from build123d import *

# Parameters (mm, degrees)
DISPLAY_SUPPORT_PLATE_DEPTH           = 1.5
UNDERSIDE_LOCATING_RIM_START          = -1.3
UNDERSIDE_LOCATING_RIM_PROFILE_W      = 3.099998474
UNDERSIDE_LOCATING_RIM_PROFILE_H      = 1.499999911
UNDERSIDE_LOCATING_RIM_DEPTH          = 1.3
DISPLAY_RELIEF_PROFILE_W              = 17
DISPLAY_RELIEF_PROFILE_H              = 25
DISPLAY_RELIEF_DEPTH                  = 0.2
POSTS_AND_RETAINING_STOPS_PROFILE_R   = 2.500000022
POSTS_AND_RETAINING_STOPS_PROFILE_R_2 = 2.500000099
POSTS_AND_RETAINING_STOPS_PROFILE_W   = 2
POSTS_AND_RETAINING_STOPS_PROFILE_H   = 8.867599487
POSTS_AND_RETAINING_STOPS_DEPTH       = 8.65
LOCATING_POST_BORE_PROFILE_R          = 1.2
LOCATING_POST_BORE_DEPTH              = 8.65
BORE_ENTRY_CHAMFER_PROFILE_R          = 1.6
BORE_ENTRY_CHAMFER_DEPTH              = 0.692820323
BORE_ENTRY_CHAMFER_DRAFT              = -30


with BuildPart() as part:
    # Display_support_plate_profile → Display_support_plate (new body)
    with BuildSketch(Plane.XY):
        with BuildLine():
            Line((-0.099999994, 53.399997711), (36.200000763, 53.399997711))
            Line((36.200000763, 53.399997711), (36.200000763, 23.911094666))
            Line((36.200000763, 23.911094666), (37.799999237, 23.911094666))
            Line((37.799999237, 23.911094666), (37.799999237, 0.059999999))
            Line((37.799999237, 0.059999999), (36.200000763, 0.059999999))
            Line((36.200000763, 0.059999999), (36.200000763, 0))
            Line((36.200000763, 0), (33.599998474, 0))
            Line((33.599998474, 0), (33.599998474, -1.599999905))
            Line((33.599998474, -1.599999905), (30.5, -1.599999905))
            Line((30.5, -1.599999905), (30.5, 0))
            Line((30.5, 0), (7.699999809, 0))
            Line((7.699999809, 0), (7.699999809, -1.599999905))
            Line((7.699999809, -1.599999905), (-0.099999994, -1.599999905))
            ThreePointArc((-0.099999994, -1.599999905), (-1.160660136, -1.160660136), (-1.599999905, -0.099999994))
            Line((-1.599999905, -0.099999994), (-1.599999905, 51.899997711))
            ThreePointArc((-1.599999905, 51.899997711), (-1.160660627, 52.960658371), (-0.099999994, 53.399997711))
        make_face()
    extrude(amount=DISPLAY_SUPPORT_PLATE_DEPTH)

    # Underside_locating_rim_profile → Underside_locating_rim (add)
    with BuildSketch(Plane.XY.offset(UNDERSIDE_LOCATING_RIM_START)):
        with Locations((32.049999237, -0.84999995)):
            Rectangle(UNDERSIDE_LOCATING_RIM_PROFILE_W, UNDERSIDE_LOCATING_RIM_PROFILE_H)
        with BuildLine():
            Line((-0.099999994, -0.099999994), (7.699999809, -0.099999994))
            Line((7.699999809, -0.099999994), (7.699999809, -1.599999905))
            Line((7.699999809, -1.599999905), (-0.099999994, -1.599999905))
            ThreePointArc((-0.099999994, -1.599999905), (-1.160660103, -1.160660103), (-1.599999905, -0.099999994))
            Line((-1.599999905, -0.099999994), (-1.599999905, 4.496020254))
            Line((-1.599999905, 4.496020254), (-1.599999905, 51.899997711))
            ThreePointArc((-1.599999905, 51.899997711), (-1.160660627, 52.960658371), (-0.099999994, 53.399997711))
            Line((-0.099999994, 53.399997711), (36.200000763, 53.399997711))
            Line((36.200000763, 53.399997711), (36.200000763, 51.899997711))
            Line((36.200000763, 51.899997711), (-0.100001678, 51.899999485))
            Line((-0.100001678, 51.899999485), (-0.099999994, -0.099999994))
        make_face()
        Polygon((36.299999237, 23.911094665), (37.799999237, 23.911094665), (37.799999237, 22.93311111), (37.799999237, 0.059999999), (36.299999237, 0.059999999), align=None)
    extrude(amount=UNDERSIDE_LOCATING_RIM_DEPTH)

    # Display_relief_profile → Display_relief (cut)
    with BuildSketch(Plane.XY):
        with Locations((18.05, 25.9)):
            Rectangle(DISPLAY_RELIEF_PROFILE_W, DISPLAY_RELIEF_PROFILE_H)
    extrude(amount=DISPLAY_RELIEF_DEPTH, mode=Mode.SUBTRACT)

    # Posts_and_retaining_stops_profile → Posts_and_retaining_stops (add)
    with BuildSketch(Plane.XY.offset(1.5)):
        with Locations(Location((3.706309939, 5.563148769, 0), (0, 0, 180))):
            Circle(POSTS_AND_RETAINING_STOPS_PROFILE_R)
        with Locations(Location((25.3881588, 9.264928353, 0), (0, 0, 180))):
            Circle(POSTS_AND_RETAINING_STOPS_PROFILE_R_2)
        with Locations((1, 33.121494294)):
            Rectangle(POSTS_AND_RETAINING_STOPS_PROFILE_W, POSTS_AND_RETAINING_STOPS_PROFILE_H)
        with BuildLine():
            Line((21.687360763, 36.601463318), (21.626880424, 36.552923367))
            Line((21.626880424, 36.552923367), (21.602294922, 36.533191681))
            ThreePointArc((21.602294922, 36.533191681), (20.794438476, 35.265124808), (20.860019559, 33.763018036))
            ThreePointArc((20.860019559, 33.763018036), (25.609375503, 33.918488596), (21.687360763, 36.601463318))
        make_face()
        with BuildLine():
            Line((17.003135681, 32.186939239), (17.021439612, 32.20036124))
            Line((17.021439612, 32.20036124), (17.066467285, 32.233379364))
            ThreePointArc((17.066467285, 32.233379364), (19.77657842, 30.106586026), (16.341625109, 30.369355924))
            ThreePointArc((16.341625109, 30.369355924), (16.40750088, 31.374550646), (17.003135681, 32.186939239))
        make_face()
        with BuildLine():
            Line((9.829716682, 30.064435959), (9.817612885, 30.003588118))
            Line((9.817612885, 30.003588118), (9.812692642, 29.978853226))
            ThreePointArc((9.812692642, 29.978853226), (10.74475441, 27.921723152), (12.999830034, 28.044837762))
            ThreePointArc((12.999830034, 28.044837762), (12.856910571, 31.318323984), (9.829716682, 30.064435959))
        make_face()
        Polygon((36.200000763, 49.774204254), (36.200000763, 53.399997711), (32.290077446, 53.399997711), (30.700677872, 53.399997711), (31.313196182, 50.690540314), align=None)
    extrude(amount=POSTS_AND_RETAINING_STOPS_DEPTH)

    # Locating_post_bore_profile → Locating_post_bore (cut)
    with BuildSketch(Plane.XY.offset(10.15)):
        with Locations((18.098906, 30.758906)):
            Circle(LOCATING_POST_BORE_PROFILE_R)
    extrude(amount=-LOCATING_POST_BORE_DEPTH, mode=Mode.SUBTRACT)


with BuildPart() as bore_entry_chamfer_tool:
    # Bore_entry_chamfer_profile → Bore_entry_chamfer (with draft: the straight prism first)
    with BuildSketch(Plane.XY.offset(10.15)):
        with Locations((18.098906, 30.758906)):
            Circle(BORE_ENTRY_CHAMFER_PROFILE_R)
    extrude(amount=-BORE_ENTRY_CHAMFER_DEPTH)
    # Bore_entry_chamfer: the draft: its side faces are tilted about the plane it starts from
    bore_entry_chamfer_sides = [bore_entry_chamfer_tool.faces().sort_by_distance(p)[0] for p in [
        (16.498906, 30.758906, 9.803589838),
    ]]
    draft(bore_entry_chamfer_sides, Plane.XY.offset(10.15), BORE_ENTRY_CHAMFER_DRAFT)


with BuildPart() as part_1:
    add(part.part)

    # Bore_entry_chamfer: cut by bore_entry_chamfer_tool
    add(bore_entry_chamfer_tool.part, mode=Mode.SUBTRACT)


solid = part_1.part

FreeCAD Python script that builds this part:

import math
import FreeCAD as App
import Part
import Sketcher

V = App.Vector


def faces_at(feature, points):
    """Names of the faces that lie closest to the given points."""
    faces = feature.Shape.Faces
    near = lambda p: min(range(len(faces)), key=lambda i: faces[i].distToShape(Part.Vertex(*p))[0])
    return sorted({f"Face{near(p) + 1}" for p in points})


def add_polygon(sketch, points):
    """Adds a closed chain of lines whose ends are joined by coincident constraints."""
    first, n = sketch.GeometryCount, len(points)
    for a, b in zip(points, points[1:] + points[:1]):
        sketch.addGeometry(Part.LineSegment(App.Vector(*a, 0), App.Vector(*b, 0)), False)
    for i in range(n):
        sketch.addConstraint(Sketcher.Constraint("Coincident", first + i, 2, first + (i + 1) % n, 1))

doc = App.newDocument("Part")
body = doc.addObject("PartDesign::Body", "Body")

sketch1 = body.newObject("Sketcher::SketchObject", "Sketch")
sketch1.AttachmentSupport = (doc.getObject("XY_Plane"), [""])
sketch1.MapMode = "FlatFace"
sketch1.addGeometry([
    Part.LineSegment(V(36.2, 53.4, 0), V(-0.1, 53.4, 0)),
    Part.ArcOfCircle(Part.Circle(V(-0.1, 51.9, 0), V(0, 0, 1), 1.5), math.radians(90), math.radians(180)),
    Part.LineSegment(V(-1.6, 51.9, 0), V(-1.6, -0.1, 0)),
    Part.ArcOfCircle(Part.Circle(V(-0.1, -0.1, 0), V(0, 0, 1), 1.5), math.radians(180), math.radians(270)),
    Part.LineSegment(V(-0.1, -1.6, 0), V(7.7, -1.6, 0)),
    Part.LineSegment(V(7.7, -1.6, 0), V(7.7, 0, 0)),
    Part.LineSegment(V(7.7, 0, 0), V(30.5, 0, 0)),
    Part.LineSegment(V(30.5, 0, 0), V(30.5, -1.6, 0)),
    Part.LineSegment(V(30.5, -1.6, 0), V(33.6, -1.6, 0)),
    Part.LineSegment(V(33.6, -1.6, 0), V(33.6, 0, 0)),
    Part.LineSegment(V(33.6, 0, 0), V(36.2, 0, 0)),
    Part.LineSegment(V(36.2, 0, 0), V(36.2, 0.06, 0)),
    Part.LineSegment(V(36.2, 0.06, 0), V(37.8, 0.06, 0)),
    Part.LineSegment(V(37.8, 0.06, 0), V(37.8, 23.91, 0)),
    Part.LineSegment(V(37.8, 23.91, 0), V(36.2, 23.91, 0)),
    Part.LineSegment(V(36.2, 23.91, 0), V(36.2, 53.4, 0)),
], False)
sketch1.addConstraint([
    Sketcher.Constraint("Tangent", 0, 2, 1, 1),
    Sketcher.Constraint("Tangent", 1, 2, 2, 1),
    Sketcher.Constraint("Tangent", 2, 2, 3, 1),
    Sketcher.Constraint("Tangent", 3, 2, 4, 1),
    Sketcher.Constraint("Coincident", 4, 2, 5, 1),
    Sketcher.Constraint("Coincident", 5, 2, 6, 1),
    Sketcher.Constraint("Coincident", 6, 2, 7, 1),
    Sketcher.Constraint("Coincident", 7, 2, 8, 1),
    Sketcher.Constraint("Coincident", 8, 2, 9, 1),
    Sketcher.Constraint("Coincident", 9, 2, 10, 1),
    Sketcher.Constraint("Coincident", 10, 2, 11, 1),
    Sketcher.Constraint("Coincident", 11, 2, 12, 1),
    Sketcher.Constraint("Coincident", 12, 2, 13, 1),
    Sketcher.Constraint("Coincident", 13, 2, 14, 1),
    Sketcher.Constraint("Coincident", 14, 2, 15, 1),
    Sketcher.Constraint("Coincident", 15, 2, 0, 1),
    Sketcher.Constraint("Horizontal", 0),
    Sketcher.Constraint("Vertical", 2),
    Sketcher.Constraint("Horizontal", 4),
    Sketcher.Constraint("Vertical", 5),
    Sketcher.Constraint("Horizontal", 6),
    Sketcher.Constraint("Vertical", 7),
    Sketcher.Constraint("Horizontal", 8),
    Sketcher.Constraint("Vertical", 9),
    Sketcher.Constraint("Horizontal", 10),
    Sketcher.Constraint("Vertical", 11),
    Sketcher.Constraint("Horizontal", 12),
    Sketcher.Constraint("Vertical", 13),
    Sketcher.Constraint("Horizontal", 14),
    Sketcher.Constraint("Vertical", 15),
    Sketcher.Constraint("Equal", 1, 3),
    Sketcher.Constraint("PointOnObject", 5, 2, -1),
    Sketcher.Constraint("PointOnObject", 9, 2, -1),
    Sketcher.Constraint("Horizontal", 4, 2, 7, 2),
    Sketcher.Constraint("Vertical", 11, 2, 14, 2),
    Sketcher.Constraint("Equal", 14, 5),
    Sketcher.Constraint("Radius", 1, 1.499998),
    Sketcher.Constraint("DistanceX", 0, 2, 0, 1, 36.300001),
    Sketcher.Constraint("DistanceX", 4, 1, 4, 2, 7.8),
    Sketcher.Constraint("DistanceX", 6, 1, 6, 2, 22.8),
    Sketcher.Constraint("DistanceX", 8, 1, 8, 2, 3.099998),
    Sketcher.Constraint("DistanceX", 12, 1, 12, 2, 1.599998),
    Sketcher.Constraint("DistanceY", 3, 3, 1, 3, 52.0),
    Sketcher.Constraint("DistanceY", 11, 1, 11, 2, 0.06),
    Sketcher.Constraint("DistanceX", 1, 3, -1, 1, 0.100002),
    Sketcher.Constraint("DistanceY", 13, 1, 13, 2, 23.851095),
])
pad1 = body.newObject("PartDesign::Pad", "Pad")
pad1.Profile = sketch1
pad1.Length = 1.5

sketch2 = body.newObject("Sketcher::SketchObject", "Sketch001")
sketch2.AttachmentSupport = (doc.getObject("XY_Plane"), [""])
sketch2.MapMode = "FlatFace"
sketch2.AttachmentOffset = App.Placement(V(0, 0, -1.3), App.Rotation())
add_polygon(sketch2, [(30.5, -0.1), (30.5, -1.6), (33.6, -1.6), (33.6, -0.1)])
sketch2.addGeometry(Part.LineSegment(V(7.7, -0.1, 0), V(-0.1, -0.1, 0)), False)
sketch2.addGeometry(Part.LineSegment(V(-0.1, -0.1, 0), V(-0.1, 51.9, 0)), False)
sketch2.addGeometry(Part.LineSegment(V(-0.1, 51.9, 0), V(36.2, 51.9, 0)), False)
sketch2.addGeometry(Part.LineSegment(V(36.2, 51.9, 0), V(36.2, 53.4, 0)), False)
sketch2.addGeometry(Part.LineSegment(V(36.2, 53.4, 0), V(-0.1, 53.4, 0)), False)
sketch2.addGeometry(Part.ArcOfCircle(Part.Circle(V(-0.1, 51.9, 0), V(0, 0, 1), 1.5), math.radians(90), math.radians(180)), False)
sketch2.addGeometry(Part.LineSegment(V(-1.6, 51.9, 0), V(-1.6, -0.1, 0)), False)
sketch2.addGeometry(Part.ArcOfCircle(Part.Circle(V(-0.1, -0.1, 0), V(0, 0, 1), 1.5), math.radians(180), math.radians(270)), False)
sketch2.addGeometry(Part.LineSegment(V(-0.1, -1.6, 0), V(7.7, -1.6, 0)), False)
sketch2.addGeometry(Part.LineSegment(V(7.7, -1.6, 0), V(7.7, -0.1, 0)), False)
add_polygon(sketch2, [(37.8, 23.9), (36.3, 23.9), (36.3, 0.1), (37.8, 0.1)])
sketch2.addConstraint([
    Sketcher.Constraint("Coincident", 4, 2, 5, 1),
    Sketcher.Constraint("Coincident", 5, 2, 6, 1),
    Sketcher.Constraint("Coincident", 6, 2, 7, 1),
    Sketcher.Constraint("Coincident", 7, 2, 8, 1),
    Sketcher.Constraint("Tangent", 8, 2, 9, 1),
    Sketcher.Constraint("Tangent", 9, 2, 10, 1),
    Sketcher.Constraint("Tangent", 10, 2, 11, 1),
    Sketcher.Constraint("Tangent", 11, 2, 12, 1),
    Sketcher.Constraint("Coincident", 12, 2, 13, 1),
    Sketcher.Constraint("Coincident", 13, 2, 4, 1),
    Sketcher.Constraint("Vertical", 0),
    Sketcher.Constraint("Horizontal", 1),
    Sketcher.Constraint("Vertical", 2),
    Sketcher.Constraint("Horizontal", 3),
    Sketcher.Constraint("Horizontal", 4),
    Sketcher.Constraint("Vertical", 5),
    Sketcher.Constraint("Horizontal", 6),
    Sketcher.Constraint("Vertical", 7),
    Sketcher.Constraint("Horizontal", 8),
    Sketcher.Constraint("Vertical", 10),
    Sketcher.Constraint("Horizontal", 12),
    Sketcher.Constraint("Vertical", 13),
    Sketcher.Constraint("Horizontal", 14),
    Sketcher.Constraint("Vertical", 15),
    Sketcher.Constraint("Horizontal", 16),
    Sketcher.Constraint("Vertical", 17),
    Sketcher.Constraint("Coincident", 4, 2, 11, 3),
    Sketcher.Constraint("Coincident", 5, 2, 9, 3),
    Sketcher.Constraint("Horizontal", 11, 3, 2, 2),
    Sketcher.Constraint("Horizontal", 1, 2, 11, 2),
    Sketcher.Constraint("Equal", 16, 0),
    Sketcher.Constraint("Radius", 9, 1.499998),
    Sketcher.Constraint("DistanceY", 5, 1, 5, 2, 51.999999),
    Sketcher.Constraint("DistanceX", 1, 1, 1, 2, 3.099998),
    Sketcher.Constraint("DistanceX", 4, 2, 4, 1, 7.8),
    Sketcher.Constraint("DistanceX", 8, 2, 8, 1, 36.300001),
    Sketcher.Constraint("DistanceX", 9, 3, -1, 1, 0.100002),
    Sketcher.Constraint("DistanceY", -1, 1, 9, 3, 51.899999),
    Sketcher.Constraint("DistanceX", -1, 1, 0, 2, 30.5),
    Sketcher.Constraint("DistanceX", -1, 1, 14, 2, 36.299999),
    Sketcher.Constraint("DistanceY", -1, 1, 15, 2, 0.06),
    Sketcher.Constraint("DistanceY", 15, 2, 15, 1, 23.851095),
])
pad2 = body.newObject("PartDesign::Pad", "Pad001")
pad2.Profile = sketch2
pad2.Length = 1.3

sketch3 = body.newObject("Sketcher::SketchObject", "Sketch002")
sketch3.AttachmentSupport = (doc.getObject("XY_Plane"), [""])
sketch3.MapMode = "FlatFace"
add_polygon(sketch3, [(10, 38), (10, 13), (27, 13), (27, 38)])
sketch3.addConstraint([
    Sketcher.Constraint("Vertical", 0),
    Sketcher.Constraint("Horizontal", 1),
    Sketcher.Constraint("Vertical", 2),
    Sketcher.Constraint("Horizontal", 3),
    Sketcher.Constraint("DistanceX", 1, 1, 1, 2, 17.0),
    Sketcher.Constraint("DistanceY", 0, 2, 0, 1, 25.0),
    Sketcher.Constraint("DistanceY", -1, 1, 0, 2, 13.4),
    Sketcher.Constraint("DistanceX", -1, 1, 0, 2, 9.55),
])
pocket1 = body.newObject("PartDesign::Pocket", "Pocket")
pocket1.Profile = sketch3
pocket1.Length = 0.2
pocket1.Reversed = True

sketch4 = body.newObject("Sketcher::SketchObject", "Sketch003")
sketch4.AttachmentSupport = (doc.getObject("XY_Plane"), [""])
sketch4.MapMode = "FlatFace"
sketch4.AttachmentOffset = App.Placement(V(0, 0, 1.5), App.Rotation())
sketch4.addGeometry(Part.Circle(V(3.70631, 5.563149, 0), V(0, 0, 1), 2.5), False)
sketch4.addGeometry(Part.Circle(V(25.388159, 9.264928, 0), V(0, 0, 1), 2.5), False)
add_polygon(sketch4, [(0, 37.555294), (0, 28.687695), (2, 28.687695), (2, 37.555294)])
sketch4.addGeometry(Part.LineSegment(V(21.687361, 36.601463, 0), V(21.62688, 36.552923, 0)), False)
sketch4.addGeometry(Part.LineSegment(V(21.62688, 36.552923, 0), V(21.602295, 36.533192, 0)), False)
sketch4.addGeometry(Part.ArcOfCircle(Part.Circle(V(23.209252, 34.618069, 0), V(0, 0, 1), 2.500001), math.radians(129.999622), math.radians(200.000008)), False)
sketch4.addGeometry(Part.ArcOfCircle(Part.Circle(V(23.209252, 34.618069, 0), V(0, 0, 1), 2.500001), math.radians(-159.999992), math.radians(127.499625)), False)
sketch4.addGeometry(Part.LineSegment(V(17.02144, 32.200361, 0), V(17.003136, 32.186939, 0)), False)
sketch4.addGeometry(Part.ArcOfCircle(Part.Circle(V(18.098956, 30.758945, 0), V(0, 0, 1), 1.799997), math.radians(127.50205), math.radians(192.499935)), False)
sketch4.addGeometry(Part.ArcOfCircle(Part.Circle(V(18.098956, 30.758945, 0), V(0, 0, 1), 1.799997), math.radians(-167.500065), math.radians(125.002035)), False)
sketch4.addGeometry(Part.LineSegment(V(17.066467, 32.233379, 0), V(17.02144, 32.200361, 0)), False)
sketch4.addGeometry(Part.LineSegment(V(9.829717, 30.064436, 0), V(9.817613, 30.003588, 0)), False)
sketch4.addGeometry(Part.LineSegment(V(9.817613, 30.003588, 0), V(9.812693, 29.978853, 0)), False)
sketch4.addGeometry(Part.ArcOfCircle(Part.Circle(V(11.782306, 29.631544, 0), V(0, 0, 1), 2), math.radians(169.999628), math.radians(307.50003)), False)
sketch4.addGeometry(Part.ArcOfCircle(Part.Circle(V(11.782306, 29.631544, 0), V(0, 0, 1), 2), math.radians(-52.49997), math.radians(167.49963)), False)
add_polygon(sketch4, [(36.200001, 49.774204), (36.200001, 53.399998), (30.700678, 53.399998), (31.313196, 50.69054)])
sketch4.addConstraint([
    Sketcher.Constraint("Coincident", 6, 2, 7, 1),
    Sketcher.Constraint("Coincident", 7, 2, 8, 1),
    Sketcher.Constraint("Coincident", 8, 2, 9, 1),
    Sketcher.Constraint("Coincident", 9, 2, 6, 1),
    Sketcher.Constraint("Coincident", 10, 2, 11, 1),
    Sketcher.Constraint("Coincident", 11, 2, 12, 1),
    Sketcher.Constraint("Coincident", 12, 2, 13, 1),
    Sketcher.Constraint("Coincident", 13, 2, 10, 1),
    Sketcher.Constraint("Coincident", 14, 2, 15, 1),
    Sketcher.Constraint("Coincident", 15, 2, 16, 1),
    Sketcher.Constraint("Coincident", 16, 2, 17, 1),
    Sketcher.Constraint("Coincident", 17, 2, 14, 1),
    Sketcher.Constraint("Vertical", 2),
    Sketcher.Constraint("Horizontal", 3),
    Sketcher.Constraint("Vertical", 4),
    Sketcher.Constraint("Horizontal", 5),
    Sketcher.Constraint("Vertical", 18),
    Sketcher.Constraint("Horizontal", 19),
    Sketcher.Constraint("Coincident", 9, 3, 8, 3),
    Sketcher.Constraint("Coincident", 12, 3, 11, 3),
    Sketcher.Constraint("Coincident", 17, 3, 16, 3),
    Sketcher.Constraint("PointOnObject", 2, 2, -2),
    Sketcher.Constraint("Diameter", 0, 5.0),
    Sketcher.Constraint("Diameter", 1, 5.0),
    Sketcher.Constraint("Radius", 16, 2.0),
    Sketcher.Constraint("Radius", 8, 2.500001),
    Sketcher.Constraint("DistanceX", 3, 1, 3, 2, 2.0),
    Sketcher.Constraint("DistanceX", -1, 1, 18, 2, 36.200001),
    Sketcher.Constraint("DistanceY", 2, 2, 2, 1, 8.867599),
    Sketcher.Constraint("Radius", 11, 1.799997),
    Sketcher.Constraint("DistanceY", 16, 3, 12, 3, 1.127401),
    Sketcher.Constraint("DistanceY", 16, 2, 17, 2, 2.019598),
    Sketcher.Constraint("DistanceX", 7, 2, 20, 2, 9.710901),
    Sketcher.Constraint("Distance", 6, 0.07755),
    Sketcher.Constraint("Distance", 14, 0.06204),
    Sketcher.Constraint("Distance", 15, 0.02522),
    Sketcher.Constraint("Distance", 20, 2.77783),
    Sketcher.Constraint("DistanceX", 19, 2, 19, 1, 5.499323),
    Sketcher.Constraint("DistanceY", 18, 1, 18, 2, 3.625793),
    Sketcher.Constraint("DistanceX", -1, 1, 0, 3, 3.70631),
    Sketcher.Constraint("DistanceY", -1, 1, 0, 3, 5.563149),
    Sketcher.Constraint("DistanceX", -1, 1, 1, 3, 25.388159),
    Sketcher.Constraint("DistanceY", -1, 1, 1, 3, 9.264928),
    Sketcher.Constraint("DistanceY", -1, 1, 8, 3, 34.618069),
    Sketcher.Constraint("DistanceX", -1, 1, 6, 2, 21.62688),
    Sketcher.Constraint("DistanceY", -1, 1, 7, 2, 36.533192),
    Sketcher.Constraint("DistanceX", -1, 1, 8, 2, 20.86002),
    Sketcher.Constraint("DistanceY", -1, 1, 8, 2, 33.763018),
    Sketcher.Constraint("DistanceX", -1, 1, 9, 2, 21.687361),
    Sketcher.Constraint("DistanceY", -1, 1, 10, 2, 32.186939),
    Sketcher.Constraint("DistanceY", -1, 1, 12, 2, 32.233379),
    Sketcher.Constraint("DistanceX", -1, 1, 13, 2, 17.02144),
    Sketcher.Constraint("DistanceY", -1, 1, 13, 2, 32.200361),
    Sketcher.Constraint("DistanceY", -1, 1, 14, 2, 30.003588),
    Sketcher.Constraint("DistanceX", -1, 1, 16, 2, 12.99983),
    Sketcher.Constraint("DistanceY", -1, 1, 20, 2, 50.69054),
    Sketcher.Constraint("DistanceX", 16, 3, 12, 3, 6.316649),
    Sketcher.Constraint("DistanceY", 2, 2, 16, 3, 0.943849),
    Sketcher.Constraint("DistanceY", 12, 3, 6, 2, 5.793979),
    Sketcher.Constraint("DistanceX", 12, 3, 7, 2, 3.503339),
    Sketcher.Constraint("DistanceX", 11, 2, 12, 3, 1.757331),
])
pad3 = body.newObject("PartDesign::Pad", "Pad002")
pad3.Profile = sketch4
pad3.Length = 8.65

sketch5 = body.newObject("Sketcher::SketchObject", "Sketch004")
sketch5.AttachmentSupport = (doc.getObject("XY_Plane"), [""])
sketch5.MapMode = "FlatFace"
sketch5.AttachmentOffset = App.Placement(V(0, 0, 10.15), App.Rotation())
sketch5.addGeometry(Part.Circle(V(18.1, 30.8, 0), V(0, 0, 1), 1.2), False)
sketch5.addConstraint([
    Sketcher.Constraint("Diameter", 0, 2.4),
    Sketcher.Constraint("DistanceX", -1, 1, 0, 3, 18.098906),
    Sketcher.Constraint("DistanceY", -1, 1, 0, 3, 30.758906),
])
pocket2 = body.newObject("PartDesign::Pocket", "Pocket001")
pocket2.Profile = sketch5
pocket2.Length = 8.65
body2 = doc.addObject("PartDesign::Body", "Body001")

sketch6 = body2.newObject("Sketcher::SketchObject", "Sketch005")
sketch6.AttachmentSupport = (doc.getObject("XY_Plane001"), [""])
sketch6.MapMode = "FlatFace"
sketch6.AttachmentOffset = App.Placement(V(0, 0, 10.15), App.Rotation())
sketch6.addGeometry(Part.Circle(V(18.1, 30.8, 0), V(0, 0, 1), 1.6), False)
sketch6.addConstraint([
    Sketcher.Constraint("Diameter", 0, 3.2),
    Sketcher.Constraint("DistanceX", -1, 1, 0, 3, 18.098906),
    Sketcher.Constraint("DistanceY", -1, 1, 0, 3, 30.758906),
])
pad4 = body2.newObject("PartDesign::Pad", "Pad003")
pad4.Profile = sketch6
pad4.Length = 0.69282
pad4.Reversed = True
doc.recompute()

datumplane = body2.newObject("PartDesign::Plane", "DatumPlane")
datumplane.AttachmentSupport = (doc.getObject("XY_Plane001"), [""])
datumplane.MapMode = "FlatFace"
datumplane.AttachmentOffset = App.Placement(V(0, 0, 10.15), App.Rotation())
draft = body2.newObject("PartDesign::Draft", "Draft")
draft.Base = (pad4, faces_at(pad4, [(16.499, 30.759, 9.804)]))
draft.NeutralPlane = (datumplane, [""])
draft.Angle = 30
draft.Reversed = True
doc.recompute()

boolean = body.newObject("PartDesign::Boolean", "Boolean")
boolean.Type = "Cut"
boolean.addObjects([body2])

doc.recompute()
